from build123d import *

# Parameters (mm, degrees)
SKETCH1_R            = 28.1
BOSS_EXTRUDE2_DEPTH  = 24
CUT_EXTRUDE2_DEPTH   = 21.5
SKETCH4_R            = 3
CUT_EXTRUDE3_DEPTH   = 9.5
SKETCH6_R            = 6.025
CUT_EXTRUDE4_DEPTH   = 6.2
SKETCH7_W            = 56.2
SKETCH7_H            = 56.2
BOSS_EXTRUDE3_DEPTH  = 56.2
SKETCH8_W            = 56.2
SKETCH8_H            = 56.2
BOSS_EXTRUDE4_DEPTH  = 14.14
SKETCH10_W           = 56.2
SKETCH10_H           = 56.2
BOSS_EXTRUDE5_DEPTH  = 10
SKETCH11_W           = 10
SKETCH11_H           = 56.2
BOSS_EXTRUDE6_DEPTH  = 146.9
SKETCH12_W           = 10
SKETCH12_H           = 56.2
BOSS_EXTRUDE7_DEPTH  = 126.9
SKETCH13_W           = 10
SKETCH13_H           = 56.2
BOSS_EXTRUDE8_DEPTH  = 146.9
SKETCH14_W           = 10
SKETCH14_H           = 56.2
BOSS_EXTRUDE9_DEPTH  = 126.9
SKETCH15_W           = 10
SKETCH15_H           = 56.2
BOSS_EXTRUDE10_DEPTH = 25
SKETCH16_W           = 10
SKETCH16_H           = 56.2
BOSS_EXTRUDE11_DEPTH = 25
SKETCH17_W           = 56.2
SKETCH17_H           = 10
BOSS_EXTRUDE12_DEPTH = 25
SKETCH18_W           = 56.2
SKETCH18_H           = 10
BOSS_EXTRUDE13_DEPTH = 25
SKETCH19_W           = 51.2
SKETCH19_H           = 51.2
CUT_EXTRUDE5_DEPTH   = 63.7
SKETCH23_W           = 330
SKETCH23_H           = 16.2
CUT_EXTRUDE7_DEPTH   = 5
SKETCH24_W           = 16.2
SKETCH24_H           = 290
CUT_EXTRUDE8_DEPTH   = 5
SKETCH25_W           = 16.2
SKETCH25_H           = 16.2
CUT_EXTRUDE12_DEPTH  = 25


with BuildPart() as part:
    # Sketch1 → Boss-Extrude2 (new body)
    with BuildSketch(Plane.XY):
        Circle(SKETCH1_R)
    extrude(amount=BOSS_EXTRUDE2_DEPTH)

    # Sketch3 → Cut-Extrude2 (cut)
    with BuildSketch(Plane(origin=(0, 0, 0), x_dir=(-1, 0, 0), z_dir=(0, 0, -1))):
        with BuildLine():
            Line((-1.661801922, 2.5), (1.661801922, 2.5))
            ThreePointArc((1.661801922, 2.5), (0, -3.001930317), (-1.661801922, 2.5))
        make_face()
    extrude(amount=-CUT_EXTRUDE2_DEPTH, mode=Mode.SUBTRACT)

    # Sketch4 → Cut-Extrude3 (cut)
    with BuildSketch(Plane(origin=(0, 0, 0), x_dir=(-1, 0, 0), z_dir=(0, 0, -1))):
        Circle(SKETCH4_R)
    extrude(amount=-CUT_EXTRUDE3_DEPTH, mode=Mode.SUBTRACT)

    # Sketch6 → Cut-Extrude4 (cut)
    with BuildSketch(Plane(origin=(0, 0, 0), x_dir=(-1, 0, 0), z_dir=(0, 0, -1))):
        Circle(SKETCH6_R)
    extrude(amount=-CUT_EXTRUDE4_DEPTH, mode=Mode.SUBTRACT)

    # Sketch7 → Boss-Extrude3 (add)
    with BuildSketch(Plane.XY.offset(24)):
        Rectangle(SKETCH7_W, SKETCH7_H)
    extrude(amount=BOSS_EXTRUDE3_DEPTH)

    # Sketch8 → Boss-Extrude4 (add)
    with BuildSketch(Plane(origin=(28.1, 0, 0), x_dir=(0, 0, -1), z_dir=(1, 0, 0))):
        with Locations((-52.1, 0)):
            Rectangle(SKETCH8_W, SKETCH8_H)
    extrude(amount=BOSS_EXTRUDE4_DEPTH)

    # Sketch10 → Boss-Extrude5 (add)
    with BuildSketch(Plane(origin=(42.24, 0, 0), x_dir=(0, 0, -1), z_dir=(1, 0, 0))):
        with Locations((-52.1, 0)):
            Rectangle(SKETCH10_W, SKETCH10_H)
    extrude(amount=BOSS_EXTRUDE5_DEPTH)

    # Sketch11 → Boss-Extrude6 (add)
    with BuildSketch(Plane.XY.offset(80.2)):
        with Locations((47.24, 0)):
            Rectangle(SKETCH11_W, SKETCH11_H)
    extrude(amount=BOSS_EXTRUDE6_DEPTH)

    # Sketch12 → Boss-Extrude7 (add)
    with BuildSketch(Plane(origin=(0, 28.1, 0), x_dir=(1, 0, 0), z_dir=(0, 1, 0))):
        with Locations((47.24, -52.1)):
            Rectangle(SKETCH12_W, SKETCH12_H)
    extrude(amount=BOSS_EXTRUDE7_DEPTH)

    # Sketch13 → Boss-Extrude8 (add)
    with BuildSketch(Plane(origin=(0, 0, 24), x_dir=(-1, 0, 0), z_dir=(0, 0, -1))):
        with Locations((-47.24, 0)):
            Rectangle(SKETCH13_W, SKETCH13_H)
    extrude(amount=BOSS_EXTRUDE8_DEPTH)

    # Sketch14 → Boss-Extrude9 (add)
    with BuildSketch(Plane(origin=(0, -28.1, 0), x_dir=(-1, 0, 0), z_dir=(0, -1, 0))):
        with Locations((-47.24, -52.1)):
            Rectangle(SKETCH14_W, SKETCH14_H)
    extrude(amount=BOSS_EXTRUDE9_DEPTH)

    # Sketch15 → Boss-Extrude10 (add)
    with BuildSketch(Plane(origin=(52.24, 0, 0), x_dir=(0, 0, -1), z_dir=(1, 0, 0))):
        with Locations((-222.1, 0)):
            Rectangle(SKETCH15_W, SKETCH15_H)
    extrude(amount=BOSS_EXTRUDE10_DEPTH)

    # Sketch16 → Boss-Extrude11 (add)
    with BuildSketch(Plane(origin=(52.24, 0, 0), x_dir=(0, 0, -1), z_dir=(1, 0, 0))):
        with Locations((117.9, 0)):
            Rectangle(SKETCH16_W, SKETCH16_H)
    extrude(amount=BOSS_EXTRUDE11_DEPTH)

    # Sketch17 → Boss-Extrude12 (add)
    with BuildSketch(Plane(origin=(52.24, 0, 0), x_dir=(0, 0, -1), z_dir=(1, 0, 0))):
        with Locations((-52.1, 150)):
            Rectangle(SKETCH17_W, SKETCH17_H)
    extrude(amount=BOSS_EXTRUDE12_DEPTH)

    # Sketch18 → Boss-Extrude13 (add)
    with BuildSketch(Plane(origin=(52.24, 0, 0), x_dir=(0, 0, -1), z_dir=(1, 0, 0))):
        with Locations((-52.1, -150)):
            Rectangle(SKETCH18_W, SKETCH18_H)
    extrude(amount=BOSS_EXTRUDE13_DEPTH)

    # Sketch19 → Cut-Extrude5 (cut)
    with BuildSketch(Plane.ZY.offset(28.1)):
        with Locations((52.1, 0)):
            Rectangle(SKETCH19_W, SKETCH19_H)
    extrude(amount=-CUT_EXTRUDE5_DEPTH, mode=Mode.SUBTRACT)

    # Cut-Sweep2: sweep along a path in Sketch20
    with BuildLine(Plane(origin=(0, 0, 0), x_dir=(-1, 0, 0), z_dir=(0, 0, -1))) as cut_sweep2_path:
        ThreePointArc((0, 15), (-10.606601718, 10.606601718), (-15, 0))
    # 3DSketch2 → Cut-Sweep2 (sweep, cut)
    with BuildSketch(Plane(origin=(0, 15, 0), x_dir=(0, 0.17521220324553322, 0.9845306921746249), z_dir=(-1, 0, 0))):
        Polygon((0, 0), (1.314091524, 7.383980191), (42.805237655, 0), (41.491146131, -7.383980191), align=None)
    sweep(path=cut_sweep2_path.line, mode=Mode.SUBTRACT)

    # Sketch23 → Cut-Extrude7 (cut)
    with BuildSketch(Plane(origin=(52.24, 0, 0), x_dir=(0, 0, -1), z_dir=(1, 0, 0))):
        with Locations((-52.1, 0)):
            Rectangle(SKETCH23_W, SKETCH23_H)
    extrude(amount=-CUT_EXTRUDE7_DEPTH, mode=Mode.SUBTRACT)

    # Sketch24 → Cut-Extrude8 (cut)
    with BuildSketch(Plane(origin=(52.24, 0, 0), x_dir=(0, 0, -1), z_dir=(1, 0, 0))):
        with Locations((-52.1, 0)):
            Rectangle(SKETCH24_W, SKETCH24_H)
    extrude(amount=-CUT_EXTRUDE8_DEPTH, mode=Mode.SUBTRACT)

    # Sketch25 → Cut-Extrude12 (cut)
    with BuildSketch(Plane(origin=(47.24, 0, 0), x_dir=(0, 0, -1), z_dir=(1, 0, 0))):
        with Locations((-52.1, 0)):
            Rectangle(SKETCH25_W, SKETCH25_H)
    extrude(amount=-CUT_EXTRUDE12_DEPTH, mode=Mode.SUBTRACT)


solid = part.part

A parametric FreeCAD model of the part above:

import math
import FreeCAD as App
import Part
import Sketcher
from FreeCAD import Vector


def add_polygon(sketch, points):
    """Adds a closed chain of lines whose ends are joined by coincident constraints."""
    first, n = sketch.GeometryCount, len(points)
    for a, b in zip(points, points[1:] + points[:1]):
        sketch.addGeometry(Part.LineSegment(App.Vector(*a, 0), App.Vector(*b, 0)), False)
    for i in range(n):
        sketch.addConstraint(Sketcher.Constraint("Coincident", first + i, 2, first + (i + 1) % n, 1))

doc = App.newDocument("Part")
body = doc.addObject("PartDesign::Body", "Body")

# Sketch on XY plane
sketch1 = doc.addObject("Sketcher::SketchObject", "Sketch")
body.addObject(sketch1)
sketch1.AttachmentSupport = (doc.XY_Plane, [""])
sketch1.MapMode = "FlatFace"
sketch1.addGeometry(Part.Circle(Vector(0, 0, 0), Vector(0, 0, 1), 28), False)
sketch1.addConstraint([
    Sketcher.Constraint("Coincident", 0, 3, -1, 1),
    Sketcher.Constraint("Diameter", 0, 56.2),
])
pad1 = doc.addObject("PartDesign::Pad", "Pad")
body.addObject(pad1)
pad1.Profile = sketch1
pad1.Length = 24

# Sketch on XY plane
sketch2 = doc.addObject("Sketcher::SketchObject", "Sketch001")
body.addObject(sketch2)
sketch2.AttachmentSupport = (doc.XY_Plane, [""])
sketch2.MapMode = "FlatFace"
sketch2.addGeometry([
    Part.LineSegment(Vector(-1.7, 2.5, 0), Vector(1.7, 2.5, 0)),
    Part.ArcOfCircle(Part.Circle(Vector(0, 0, 0), Vector(0, 0, 1), 3), math.radians(124), math.radians(416)),
], False)
sketch2.addConstraint([
    Sketcher.Constraint("Coincident", 0, 1, 1, 1),
    Sketcher.Constraint("Coincident", 1, 2, 0, 2),
    Sketcher.Constraint("Horizontal", 0),
    Sketcher.Constraint("Coincident", 1, 3, -1, 1),
    Sketcher.Constraint("DistanceY", -1, 1, 0, 1, 2.5),
    Sketcher.Constraint("Radius", 1, 3.00193),
])
pocket1 = doc.addObject("PartDesign::Pocket", "Pocket")
body.addObject(pocket1)
pocket1.Profile = sketch2
pocket1.Length = 21.5
pocket1.Reversed = True

# Sketch on XY plane
sketch3 = doc.addObject("Sketcher::SketchObject", "Sketch002")
body.addObject(sketch3)
sketch3.AttachmentSupport = (doc.XY_Plane, [""])
sketch3.MapMode = "FlatFace"
sketch3.addGeometry(Part.Circle(Vector(0, 0, 0), Vector(0, 0, 1), 3), False)
sketch3.addConstraint([
    Sketcher.Constraint("Coincident", 0, 3, -1, 1),
    Sketcher.Constraint("Diameter", 0, 6.0),
])
pocket2 = doc.addObject("PartDesign::Pocket", "Pocket001")
body.addObject(pocket2)
pocket2.Profile = sketch3
pocket2.Length = 9.5
pocket2.Reversed = True

# Sketch on XY plane
sketch4 = doc.addObject("Sketcher::SketchObject", "Sketch003")
body.addObject(sketch4)
sketch4.AttachmentSupport = (doc.XY_Plane, [""])
sketch4.MapMode = "FlatFace"
sketch4.addGeometry(Part.Circle(Vector(0, 0, 0), Vector(0, 0, 1), 6), False)
sketch4.addConstraint([
    Sketcher.Constraint("Coincident", 0, 3, -1, 1),
    Sketcher.Constraint("Diameter", 0, 12.05),
])
pocket3 = doc.addObject("PartDesign::Pocket", "Pocket002")
body.addObject(pocket3)
pocket3.Profile = sketch4
pocket3.Length = 6.2
pocket3.Reversed = True

# Sketch on XY plane
sketch5 = doc.addObject("Sketcher::SketchObject", "Sketch004")
body.addObject(sketch5)
sketch5.AttachmentSupport = (doc.XY_Plane, [""])
sketch5.MapMode = "FlatFace"
sketch5.AttachmentOffset = App.Placement(Vector(0, 0, 24), App.Rotation())
add_polygon(sketch5, [(-28, 28), (-28, -28), (28, -28), (28, 28)])  # lines 0-3
sketch5.addConstraint([
    Sketcher.Constraint("Vertical", 0),
    Sketcher.Constraint("Horizontal", 1),
    Sketcher.Constraint("Vertical", 2),
    Sketcher.Constraint("Horizontal", 3),
    Sketcher.Constraint("Symmetric", 0, 2, 2, 2, -1, 1),
    Sketcher.Constraint("Equal", 3, 0),
    Sketcher.Constraint("DistanceX", 1, 1, 1, 2, 56.2),
])
pad2 = doc.addObject("PartDesign::Pad", "Pad001")
body.addObject(pad2)
pad2.Profile = sketch5
pad2.Length = 56.2

# Sketch on YZ plane
sketch6 = doc.addObject("Sketcher::SketchObject", "Sketch005")
body.addObject(sketch6)
sketch6.AttachmentSupport = (doc.YZ_Plane, [""])
sketch6.MapMode = "FlatFace"
sketch6.AttachmentOffset = App.Placement(Vector(0, 0, 28.1), App.Rotation())
add_polygon(sketch6, [(28, 80), (-28, 80), (-28, 24), (28, 24)])  # lines 0-3
sketch6.addConstraint([
    Sketcher.Constraint("Horizontal", 0),
    Sketcher.Constraint("Vertical", 1),
    Sketcher.Constraint("Horizontal", 2),
    Sketcher.Constraint("Vertical", 3),
    Sketcher.Constraint("Equal", 2, 1),
    Sketcher.Constraint("DistanceX", 0, 2, 0, 1, 56.2),
    Sketcher.Constraint("DistanceY", -1, 1, 1, 2, 24.0),
    Sketcher.Constraint("DistanceX", 0, 2, -1, 1, 28.1),
])
pad3 = doc.addObject("PartDesign::Pad", "Pad002")
body.addObject(pad3)
pad3.Profile = sketch6
pad3.Length = 14.14

# Sketch on YZ plane
sketch7 = doc.addObject("Sketcher::SketchObject", "Sketch006")
body.addObject(sketch7)
sketch7.AttachmentSupport = (doc.YZ_Plane, [""])
sketch7.MapMode = "FlatFace"
sketch7.AttachmentOffset = App.Placement(Vector(0, 0, 42.24), App.Rotation())
add_polygon(sketch7, [(28, 80), (-28, 80), (-28, 24), (28, 24)])  # lines 0-3
sketch7.addConstraint([
    Sketcher.Constraint("Horizontal", 0),
    Sketcher.Constraint("Vertical", 1),
    Sketcher.Constraint("Horizontal", 2),
    Sketcher.Constraint("Vertical", 3),
    Sketcher.Constraint("Equal", 2, 1),
    Sketcher.Constraint("DistanceX", 0, 2, 0, 1, 56.2),
    Sketcher.Constraint("DistanceY", -1, 1, 1, 2, 24.0),
    Sketcher.Constraint("DistanceX", 0, 2, -1, 1, 28.1),
])
pad4 = doc.addObject("PartDesign::Pad", "Pad003")
body.addObject(pad4)
pad4.Profile = sketch7
pad4.Length = 10

# Sketch on XY plane
sketch8 = doc.addObject("Sketcher::SketchObject", "Sketch007")
body.addObject(sketch8)
sketch8.AttachmentSupport = (doc.XY_Plane, [""])
sketch8.MapMode = "FlatFace"
sketch8.AttachmentOffset = App.Placement(Vector(0, 0, 80.2), App.Rotation())
add_polygon(sketch8, [(42, 28), (42, -28), (52, -28), (52, 28)])  # lines 0-3
sketch8.addConstraint([
    Sketcher.Constraint("Vertical", 0),
    Sketcher.Constraint("Horizontal", 1),
    Sketcher.Constraint("Vertical", 2),
    Sketcher.Constraint("Horizontal", 3),
    Sketcher.Constraint("DistanceX", 1, 1, 1, 2, 10.0),
    Sketcher.Constraint("DistanceY", 0, 2, 0, 1, 56.2),
    Sketcher.Constraint("DistanceY", 0, 2, -1, 1, 28.1),
    Sketcher.Constraint("DistanceX", -1, 1, 0, 2, 42.24),
])
pad5 = doc.addObject("PartDesign::Pad", "Pad004")
body.addObject(pad5)
pad5.Profile = sketch8
pad5.Length = 146.9

# Sketch on XZ plane
sketch9 = doc.addObject("Sketcher::SketchObject", "Sketch008")
body.addObject(sketch9)
sketch9.AttachmentSupport = (doc.XZ_Plane, [""])
sketch9.MapMode = "FlatFace"
sketch9.AttachmentOffset = App.Placement(Vector(0, 0, -28.1), App.Rotation())
add_polygon(sketch9, [(42, 24), (42, 80), (52, 80), (52, 24)])  # lines 0-3
sketch9.addConstraint([
    Sketcher.Constraint("Vertical", 0),
    Sketcher.Constraint("Horizontal", 1),
    Sketcher.Constraint("Vertical", 2),
    Sketcher.Constraint("Horizontal", 3),
    Sketcher.Constraint("DistanceX", 1, 1, 1, 2, 10.0),
    Sketcher.Constraint("DistanceY", 0, 1, 0, 2, 56.2),
    Sketcher.Constraint("DistanceY", -1, 1, 2, 2, 24.0),
    Sketcher.Constraint("DistanceX", -1, 1, 0, 2, 42.24),
])
pad6 = doc.addObject("PartDesign::Pad", "Pad005")
body.addObject(pad6)
pad6.Profile = sketch9
pad6.Length = 126.9
pad6.Reversed = True

# Sketch on XY plane
sketch10 = doc.addObject("Sketcher::SketchObject", "Sketch009")
body.addObject(sketch10)
sketch10.AttachmentSupport = (doc.XY_Plane, [""])
sketch10.MapMode = "FlatFace"
sketch10.AttachmentOffset = App.Placement(Vector(0, 0, 24), App.Rotation())
add_polygon(sketch10, [(52, 28), (52, -28), (42, -28), (42, 28)])  # lines 0-3
sketch10.addConstraint([
    Sketcher.Constraint("Vertical", 0),
    Sketcher.Constraint("Horizontal", 1),
    Sketcher.Constraint("Vertical", 2),
    Sketcher.Constraint("Horizontal", 3),
    Sketcher.Constraint("DistanceX", 1, 2, 1, 1, 10.0),
    Sketcher.Constraint("DistanceY", 0, 2, 0, 1, 56.2),
    Sketcher.Constraint("DistanceY", 0, 2, -1, 1, 28.1),
    Sketcher.Constraint("DistanceX", -1, 1, 0, 2, 52.24),
])
pad7 = doc.addObject("PartDesign::Pad", "Pad006")
body.addObject(pad7)
pad7.Profile = sketch10
pad7.Length = 146.9
pad7.Reversed = True

# Sketch on XZ plane
sketch11 = doc.addObject("Sketcher::SketchObject", "Sketch010")
body.addObject(sketch11)
sketch11.AttachmentSupport = (doc.XZ_Plane, [""])
sketch11.MapMode = "FlatFace"
sketch11.AttachmentOffset = App.Placement(Vector(0, 0, 28.1), App.Rotation())
add_polygon(sketch11, [(52, 24), (52, 80), (42, 80), (42, 24)])  # lines 0-3
sketch11.addConstraint([
    Sketcher.Constraint("Vertical", 0),
    Sketcher.Constraint("Horizontal", 1),
    Sketcher.Constraint("Vertical", 2),
    Sketcher.Constraint("Horizontal", 3),
    Sketcher.Constraint("DistanceX", 1, 2, 1, 1, 10.0),
    Sketcher.Constraint("DistanceY", 0, 1, 0, 2, 56.2),
    Sketcher.Constraint("DistanceY", -1, 1, 2, 2, 24.0),
    Sketcher.Constraint("DistanceX", -1, 1, 0, 2, 52.24),
])
pad8 = doc.addObject("PartDesign::Pad", "Pad007")
body.addObject(pad8)
pad8.Profile = sketch11
pad8.Length = 126.9

# Sketch on YZ plane
sketch12 = doc.addObject("Sketcher::SketchObject", "Sketch011")
body.addObject(sketch12)
sketch12.AttachmentSupport = (doc.YZ_Plane, [""])
sketch12.MapMode = "FlatFace"
sketch12.AttachmentOffset = App.Placement(Vector(0, 0, 52.24), App.Rotation())
add_polygon(sketch12, [(28, 227), (-28, 227), (-28, 217), (28, 217)])  # lines 0-3
sketch12.addConstraint([
    Sketcher.Constraint("Horizontal", 0),
    Sketcher.Constraint("Vertical", 1),
    Sketcher.Constraint("Horizontal", 2),
    Sketcher.Constraint("Vertical", 3),
    Sketcher.Constraint("DistanceY", 1, 2, 1, 1, 10.0),
    Sketcher.Constraint("DistanceX", 0, 2, 0, 1, 56.2),
    Sketcher.Constraint("DistanceX", 0, 2, -1, 1, 28.1),
    Sketcher.Constraint("DistanceY", -1, 1, 0, 2, 227.1),
])
pad9 = doc.addObject("PartDesign::Pad", "Pad008")
body.addObject(pad9)
pad9.Profile = sketch12
pad9.Length = 25

# Sketch on YZ plane
sketch13 = doc.addObject("Sketcher::SketchObject", "Sketch012")
body.addObject(sketch13)
sketch13.AttachmentSupport = (doc.YZ_Plane, [""])
sketch13.MapMode = "FlatFace"
sketch13.AttachmentOffset = App.Placement(Vector(0, 0, 52.24), App.Rotation())
add_polygon(sketch13, [(28, -113), (-28, -113), (-28, -123), (28, -123)])  # lines 0-3
sketch13.addConstraint([
    Sketcher.Constraint("Horizontal", 0),
    Sketcher.Constraint("Vertical", 1),
    Sketcher.Constraint("Horizontal", 2),
    Sketcher.Constraint("Vertical", 3),
    Sketcher.Constraint("DistanceY", 1, 2, 1, 1, 10.0),
    Sketcher.Constraint("DistanceX", 0, 2, 0, 1, 56.2),
    Sketcher.Constraint("DistanceX", 0, 2, -1, 1, 28.1),
    Sketcher.Constraint("DistanceY", 0, 2, -1, 1, 112.9),
])
pad10 = doc.addObject("PartDesign::Pad", "Pad009")
body.addObject(pad10)
pad10.Profile = sketch13
pad10.Length = 25

# Sketch on YZ plane
sketch14 = doc.addObject("Sketcher::SketchObject", "Sketch013")
body.addObject(sketch14)
sketch14.AttachmentSupport = (doc.YZ_Plane, [""])
sketch14.MapMode = "FlatFace"
sketch14.AttachmentOffset = App.Placement(Vector(0, 0, 52.24), App.Rotation())
add_polygon(sketch14, [(155, 80), (145, 80), (145, 24), (155, 24)])  # lines 0-3
sketch14.addConstraint([
    Sketcher.Constraint("Horizontal", 0),
    Sketcher.Constraint("Vertical", 1),
    Sketcher.Constraint("Horizontal", 2),
    Sketcher.Constraint("Vertical", 3),
    Sketcher.Constraint("DistanceX", 0, 2, 0, 1, 10.0),
    Sketcher.Constraint("DistanceY", 1, 2, 1, 1, 56.2),
    Sketcher.Constraint("DistanceX", -1, 1, 0, 2, 145.0),
    Sketcher.Constraint("DistanceY", -1, 1, 1, 2, 24.0),
])
pad11 = doc.addObject("PartDesign::Pad", "Pad010")
body.addObject(pad11)
pad11.Profile = sketch14
pad11.Length = 25

# Sketch on YZ plane
sketch15 = doc.addObject("Sketcher::SketchObject", "Sketch014")
body.addObject(sketch15)
sketch15.AttachmentSupport = (doc.YZ_Plane, [""])
sketch15.MapMode = "FlatFace"
sketch15.AttachmentOffset = App.Placement(Vector(0, 0, 52.24), App.Rotation())
add_polygon(sketch15, [(-145, 80), (-155, 80), (-155, 24), (-145, 24)])  # lines 0-3
sketch15.addConstraint([
    Sketcher.Constraint("Horizontal", 0),
    Sketcher.Constraint("Vertical", 1),
    Sketcher.Constraint("Horizontal", 2),
    Sketcher.Constraint("Vertical", 3),
    Sketcher.Constraint("DistanceX", 0, 2, 0, 1, 10.0),
    Sketcher.Constraint("DistanceY", 1, 2, 1, 1, 56.2),
    Sketcher.Constraint("DistanceX", 0, 2, -1, 1, 155.0),
    Sketcher.Constraint("DistanceY", -1, 1, 1, 2, 24.0),
])
pad12 = doc.addObject("PartDesign::Pad", "Pad011")
body.addObject(pad12)
pad12.Profile = sketch15
pad12.Length = 25

# Sketch on YZ plane
sketch16 = doc.addObject("Sketcher::SketchObject", "Sketch015")
body.addObject(sketch16)
sketch16.AttachmentSupport = (doc.YZ_Plane, [""])
sketch16.MapMode = "FlatFace"
sketch16.AttachmentOffset = App.Placement(Vector(0, 0, -28.1), App.Rotation())
add_polygon(sketch16, [(26, 26), (-26, 26), (-26, 78), (26, 78)])  # lines 0-3
sketch16.addConstraint([
    Sketcher.Constraint("Horizontal", 0),
    Sketcher.Constraint("Vertical", 1),
    Sketcher.Constraint("Horizontal", 2),
    Sketcher.Constraint("Vertical", 3),
    Sketcher.Constraint("Equal", 2, 1),
    Sketcher.Constraint("DistanceX", 0, 2, 0, 1, 51.2),
    Sketcher.Constraint("DistanceX", 0, 2, -1, 1, 25.6),
    Sketcher.Constraint("DistanceY", -1, 1, 0, 2, 26.5),
])
pocket4 = doc.addObject("PartDesign::Pocket", "Pocket003")
body.addObject(pocket4)
pocket4.Profile = sketch16
pocket4.Length = 63.7
pocket4.Reversed = True

# Sketch on YZ plane
sketch17 = doc.addObject("Sketcher::SketchObject", "Sketch016")
body.addObject(sketch17)
sketch17.AttachmentSupport = (doc.YZ_Plane, [""])
sketch17.MapMode = "FlatFace"
add_polygon(sketch17, [(22, 0), (15, 0), (15, 42), (22, 42)])  # lines 0-3
sketch17.addConstraint([
    Sketcher.Constraint("Horizontal", 0),
    Sketcher.Constraint("Vertical", 1),
    Sketcher.Constraint("Horizontal", 2),
    Sketcher.Constraint("Vertical", 3),
    Sketcher.Constraint("PointOnObject", 0, 2, -1),
    Sketcher.Constraint("DistanceX", 0, 2, 0, 1, 7.5),
    Sketcher.Constraint("DistanceX", -1, 1, 0, 2, 15.0),
    Sketcher.Constraint("DistanceY", 1, 1, 1, 2, 42.14307),
])

# Sketch on XY plane
sketch18 = doc.addObject("Sketcher::SketchObject", "Sketch017")
body.addObject(sketch18)
sketch18.AttachmentSupport = (doc.XY_Plane, [""])
sketch18.MapMode = "FlatFace"
sketch18.addGeometry(Part.ArcOfCircle(Part.Circle(Vector(0, 0, 0), Vector(0, 0, 1), 15), math.radians(0), math.radians(90)), False)
sketch18.addConstraint([
    Sketcher.Constraint("Coincident", 0, 3, -1, 1),
    Sketcher.Constraint("PointOnObject", 0, 1, -1),
    Sketcher.Constraint("PointOnObject", 0, 2, -2),
    Sketcher.Constraint("Radius", 0, 15.0),
])
doc.recompute()

subtractivepipe = doc.addObject("PartDesign::SubtractivePipe", "SubtractivePipe")
body.addObject(subtractivepipe)
subtractivepipe.Profile = sketch17
subtractivepipe.Spine = (sketch18, ["Edge1"])

# Sketch on YZ plane
sketch19 = doc.addObject("Sketcher::SketchObject", "Sketch018")
body.addObject(sketch19)
sketch19.AttachmentSupport = (doc.YZ_Plane, [""])
sketch19.MapMode = "FlatFace"
sketch19.AttachmentOffset = App.Placement(Vector(0, 0, 52.24), App.Rotation())
add_polygon(sketch19, [(8, 217), (-8, 217), (-8, -113), (8, -113)])  # lines 0-3
sketch19.addConstraint([
    Sketcher.Constraint("Horizontal", 0),
    Sketcher.Constraint("Vertical", 1),
    Sketcher.Constraint("Horizontal", 2),
    Sketcher.Constraint("Vertical", 3),
    Sketcher.Constraint("DistanceY", 1, 2, 1, 1, 330.0),
    Sketcher.Constraint("DistanceX", 0, 2, 0, 1, 16.2),
    Sketcher.Constraint("DistanceX", 0, 2, -1, 1, 8.1),
    Sketcher.Constraint("DistanceY", -1, 1, 0, 2, 217.1),
])
pocket5 = doc.addObject("PartDesign::Pocket", "Pocket004")
body.addObject(pocket5)
pocket5.Profile = sketch19
pocket5.Length = 5

# Sketch on YZ plane
sketch20 = doc.addObject("Sketcher::SketchObject", "Sketch019")
body.addObject(sketch20)
sketch20.AttachmentSupport = (doc.YZ_Plane, [""])
sketch20.MapMode = "FlatFace"
sketch20.AttachmentOffset = App.Placement(Vector(0, 0, 52.24), App.Rotation())
add_polygon(sketch20, [(145, 60), (-145, 60), (-145, 44), (145, 44)])  # lines 0-3
sketch20.addConstraint([
    Sketcher.Constraint("Horizontal", 0),
    Sketcher.Constraint("Vertical", 1),
    Sketcher.Constraint("Horizontal", 2),
    Sketcher.Constraint("Vertical", 3),
    Sketcher.Constraint("DistanceX", 0, 2, 0, 1, 290.0),
    Sketcher.Constraint("DistanceY", 1, 2, 1, 1, 16.2),
    Sketcher.Constraint("DistanceX", 0, 2, -1, 1, 145.0),
    Sketcher.Constraint("DistanceY", -1, 1, 1, 2, 44.0),
])
pocket6 = doc.addObject("PartDesign::Pocket", "Pocket005")
body.addObject(pocket6)
pocket6.Profile = sketch20
pocket6.Length = 5

# Sketch on YZ plane
sketch21 = doc.addObject("Sketcher::SketchObject", "Sketch020")
body.addObject(sketch21)
sketch21.AttachmentSupport = (doc.YZ_Plane, [""])
sketch21.MapMode = "FlatFace"
sketch21.AttachmentOffset = App.Placement(Vector(0, 0, 47.24), App.Rotation())
add_polygon(sketch21, [(8, 60), (-8, 60), (-8, 44), (8, 44)])  # lines 0-3
sketch21.addConstraint([
    Sketcher.Constraint("Horizontal", 0),
    Sketcher.Constraint("Vertical", 1),
    Sketcher.Constraint("Horizontal", 2),
    Sketcher.Constraint("Vertical", 3),
    Sketcher.Constraint("Equal", 2, 1),
    Sketcher.Constraint("DistanceX", 0, 2, 0, 1, 16.2),
    Sketcher.Constraint("DistanceY", -1, 1, 1, 2, 44.0),
    Sketcher.Constraint("DistanceX", 0, 2, -1, 1, 8.1),
])
pocket7 = doc.addObject("PartDesign::Pocket", "Pocket006")
body.addObject(pocket7)
pocket7.Profile = sketch21
pocket7.Length = 25

doc.recompute()
